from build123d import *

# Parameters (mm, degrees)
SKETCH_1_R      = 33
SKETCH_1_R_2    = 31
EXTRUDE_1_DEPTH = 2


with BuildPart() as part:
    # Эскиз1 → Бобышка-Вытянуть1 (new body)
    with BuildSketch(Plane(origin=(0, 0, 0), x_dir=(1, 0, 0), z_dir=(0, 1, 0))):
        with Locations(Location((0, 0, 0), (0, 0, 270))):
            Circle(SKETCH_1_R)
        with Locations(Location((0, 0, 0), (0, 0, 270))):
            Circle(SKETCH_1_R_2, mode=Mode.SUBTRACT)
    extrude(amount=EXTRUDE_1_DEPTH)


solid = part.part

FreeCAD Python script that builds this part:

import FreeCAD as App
import Part
import Sketcher
Q = App.Units.Quantity

doc = App.newDocument("Part")
body = doc.addObject("PartDesign::Body", "Body")

# Sketch on XZ plane
sketch1 = body.newObject("Sketcher::SketchObject", "Sketch")
sketch1.AttachmentSupport = (doc.getObject("XZ_Plane"), [""])
sketch1.MapMode = "FlatFace"
sketch1.addGeometry(Part.Circle(App.Vector(0, 0, 0), App.Vector(0, 0, 1), 33), False)
sketch1.addGeometry(Part.Circle(App.Vector(0, 0, 0), App.Vector(0, 0, 1), 31), False)
sketch1.addConstraint(Sketcher.Constraint("Coincident", 0, 3, -1, 1))
sketch1.addConstraint(Sketcher.Constraint("Coincident", 1, 3, -1, 1))
sketch1.addConstraint(Sketcher.Constraint("Diameter", 0, Q("66 mm")))
sketch1.addConstraint(Sketcher.Constraint("Diameter", 1, Q("62 mm")))
pad1 = body.newObject("PartDesign::Pad", "Pad")
pad1.Profile = sketch1
pad1.Length = 2
pad1.Reversed = True

doc.recompute()
